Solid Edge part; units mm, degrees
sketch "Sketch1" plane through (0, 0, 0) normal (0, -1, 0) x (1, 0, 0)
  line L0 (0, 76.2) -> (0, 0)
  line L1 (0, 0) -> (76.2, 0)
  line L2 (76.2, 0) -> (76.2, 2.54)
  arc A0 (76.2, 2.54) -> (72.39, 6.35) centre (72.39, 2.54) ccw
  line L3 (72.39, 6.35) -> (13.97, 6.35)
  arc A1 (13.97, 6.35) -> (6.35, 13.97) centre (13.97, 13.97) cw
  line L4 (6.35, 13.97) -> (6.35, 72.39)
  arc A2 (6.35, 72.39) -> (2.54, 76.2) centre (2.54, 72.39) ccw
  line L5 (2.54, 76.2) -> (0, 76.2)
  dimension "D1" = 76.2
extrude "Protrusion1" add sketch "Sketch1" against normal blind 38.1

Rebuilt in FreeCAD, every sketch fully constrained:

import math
import FreeCAD as App
import Part
import Sketcher
Q = App.Units.Quantity

doc = App.newDocument("Part")
body = doc.addObject("PartDesign::Body", "Body")

# Sketch on XZ plane
sketch1 = body.newObject("Sketcher::SketchObject", "Sketch")
sketch1.AttachmentSupport = (doc.getObject("XZ_Plane"), [""])
sketch1.MapMode = "FlatFace"
sketch1.addGeometry(Part.LineSegment(App.Vector(2.5, 76.2, 0), App.Vector(0, 76.2, 0)), False)
sketch1.addGeometry(Part.LineSegment(App.Vector(0, 76.2, 0), App.Vector(0, 0, 0)), False)
sketch1.addGeometry(Part.LineSegment(App.Vector(0, 0, 0), App.Vector(76.2, 0, 0)), False)
sketch1.addGeometry(Part.LineSegment(App.Vector(76.2, 0, 0), App.Vector(76.2, 2.5, 0)), False)
sketch1.addGeometry(Part.ArcOfCircle(Part.Circle(App.Vector(72.4, 2.5, 0), App.Vector(0, 0, 1), 3.8), math.radians(0), math.radians(90)), False)
sketch1.addGeometry(Part.LineSegment(App.Vector(72.4, 6.3, 0), App.Vector(14, 6.3, 0)), False)
sketch1.addGeometry(Part.ArcOfCircle(Part.Circle(App.Vector(14, 14, 0), App.Vector(0, 0, 1), 7.6), math.radians(180), math.radians(270)), False)
sketch1.addGeometry(Part.LineSegment(App.Vector(6.3, 14, 0), App.Vector(6.3, 72.4, 0)), False)
sketch1.addGeometry(Part.ArcOfCircle(Part.Circle(App.Vector(2.5, 72.4, 0), App.Vector(0, 0, 1), 3.8), math.radians(0), math.radians(90)), False)
sketch1.addConstraint(Sketcher.Constraint("Coincident", 0, 2, 1, 1))
sketch1.addConstraint(Sketcher.Constraint("Coincident", 1, 2, 2, 1))
sketch1.addConstraint(Sketcher.Constraint("Coincident", 2, 2, 3, 1))
sketch1.addConstraint(Sketcher.Constraint("Tangent", 3, 2, 4, 1))
sketch1.addConstraint(Sketcher.Constraint("Tangent", 4, 2, 5, 1))
sketch1.addConstraint(Sketcher.Constraint("Tangent", 5, 2, 6, 2))
sketch1.addConstraint(Sketcher.Constraint("Tangent", 6, 1, 7, 1))
sketch1.addConstraint(Sketcher.Constraint("Tangent", 7, 2, 8, 1))
sketch1.addConstraint(Sketcher.Constraint("Tangent", 8, 2, 0, 1))
sketch1.addConstraint(Sketcher.Constraint("Horizontal", 0))
sketch1.addConstraint(Sketcher.Constraint("Vertical", 1))
sketch1.addConstraint(Sketcher.Constraint("Horizontal", 2))
sketch1.addConstraint(Sketcher.Constraint("Vertical", 3))
sketch1.addConstraint(Sketcher.Constraint("Horizontal", 5))
sketch1.addConstraint(Sketcher.Constraint("Vertical", 7))
sketch1.addConstraint(Sketcher.Constraint("Coincident", 1, 2, -1, 1))
sketch1.addConstraint(Sketcher.Constraint("Equal", 4, 8))
sketch1.addConstraint(Sketcher.Constraint("Equal", 2, 1))
sketch1.addConstraint(Sketcher.Constraint("Equal", 0, 3))
sketch1.addConstraint(Sketcher.Constraint("Radius", 6, Q("0.3 in")))
sketch1.addConstraint(Sketcher.Constraint("DistanceX", 2, 1, 2, 2, Q("3 in")))
sketch1.addConstraint(Sketcher.Constraint("Radius", 4, Q("0.15 in")))
sketch1.addConstraint(Sketcher.Constraint("DistanceX", 0, 2, 0, 1, Q("0.1 in")))
pad1 = body.newObject("PartDesign::Pad", "Pad")
pad1.Profile = sketch1
pad1.Length = Q("1.5 in")
pad1.Reversed = True

doc.recompute()
